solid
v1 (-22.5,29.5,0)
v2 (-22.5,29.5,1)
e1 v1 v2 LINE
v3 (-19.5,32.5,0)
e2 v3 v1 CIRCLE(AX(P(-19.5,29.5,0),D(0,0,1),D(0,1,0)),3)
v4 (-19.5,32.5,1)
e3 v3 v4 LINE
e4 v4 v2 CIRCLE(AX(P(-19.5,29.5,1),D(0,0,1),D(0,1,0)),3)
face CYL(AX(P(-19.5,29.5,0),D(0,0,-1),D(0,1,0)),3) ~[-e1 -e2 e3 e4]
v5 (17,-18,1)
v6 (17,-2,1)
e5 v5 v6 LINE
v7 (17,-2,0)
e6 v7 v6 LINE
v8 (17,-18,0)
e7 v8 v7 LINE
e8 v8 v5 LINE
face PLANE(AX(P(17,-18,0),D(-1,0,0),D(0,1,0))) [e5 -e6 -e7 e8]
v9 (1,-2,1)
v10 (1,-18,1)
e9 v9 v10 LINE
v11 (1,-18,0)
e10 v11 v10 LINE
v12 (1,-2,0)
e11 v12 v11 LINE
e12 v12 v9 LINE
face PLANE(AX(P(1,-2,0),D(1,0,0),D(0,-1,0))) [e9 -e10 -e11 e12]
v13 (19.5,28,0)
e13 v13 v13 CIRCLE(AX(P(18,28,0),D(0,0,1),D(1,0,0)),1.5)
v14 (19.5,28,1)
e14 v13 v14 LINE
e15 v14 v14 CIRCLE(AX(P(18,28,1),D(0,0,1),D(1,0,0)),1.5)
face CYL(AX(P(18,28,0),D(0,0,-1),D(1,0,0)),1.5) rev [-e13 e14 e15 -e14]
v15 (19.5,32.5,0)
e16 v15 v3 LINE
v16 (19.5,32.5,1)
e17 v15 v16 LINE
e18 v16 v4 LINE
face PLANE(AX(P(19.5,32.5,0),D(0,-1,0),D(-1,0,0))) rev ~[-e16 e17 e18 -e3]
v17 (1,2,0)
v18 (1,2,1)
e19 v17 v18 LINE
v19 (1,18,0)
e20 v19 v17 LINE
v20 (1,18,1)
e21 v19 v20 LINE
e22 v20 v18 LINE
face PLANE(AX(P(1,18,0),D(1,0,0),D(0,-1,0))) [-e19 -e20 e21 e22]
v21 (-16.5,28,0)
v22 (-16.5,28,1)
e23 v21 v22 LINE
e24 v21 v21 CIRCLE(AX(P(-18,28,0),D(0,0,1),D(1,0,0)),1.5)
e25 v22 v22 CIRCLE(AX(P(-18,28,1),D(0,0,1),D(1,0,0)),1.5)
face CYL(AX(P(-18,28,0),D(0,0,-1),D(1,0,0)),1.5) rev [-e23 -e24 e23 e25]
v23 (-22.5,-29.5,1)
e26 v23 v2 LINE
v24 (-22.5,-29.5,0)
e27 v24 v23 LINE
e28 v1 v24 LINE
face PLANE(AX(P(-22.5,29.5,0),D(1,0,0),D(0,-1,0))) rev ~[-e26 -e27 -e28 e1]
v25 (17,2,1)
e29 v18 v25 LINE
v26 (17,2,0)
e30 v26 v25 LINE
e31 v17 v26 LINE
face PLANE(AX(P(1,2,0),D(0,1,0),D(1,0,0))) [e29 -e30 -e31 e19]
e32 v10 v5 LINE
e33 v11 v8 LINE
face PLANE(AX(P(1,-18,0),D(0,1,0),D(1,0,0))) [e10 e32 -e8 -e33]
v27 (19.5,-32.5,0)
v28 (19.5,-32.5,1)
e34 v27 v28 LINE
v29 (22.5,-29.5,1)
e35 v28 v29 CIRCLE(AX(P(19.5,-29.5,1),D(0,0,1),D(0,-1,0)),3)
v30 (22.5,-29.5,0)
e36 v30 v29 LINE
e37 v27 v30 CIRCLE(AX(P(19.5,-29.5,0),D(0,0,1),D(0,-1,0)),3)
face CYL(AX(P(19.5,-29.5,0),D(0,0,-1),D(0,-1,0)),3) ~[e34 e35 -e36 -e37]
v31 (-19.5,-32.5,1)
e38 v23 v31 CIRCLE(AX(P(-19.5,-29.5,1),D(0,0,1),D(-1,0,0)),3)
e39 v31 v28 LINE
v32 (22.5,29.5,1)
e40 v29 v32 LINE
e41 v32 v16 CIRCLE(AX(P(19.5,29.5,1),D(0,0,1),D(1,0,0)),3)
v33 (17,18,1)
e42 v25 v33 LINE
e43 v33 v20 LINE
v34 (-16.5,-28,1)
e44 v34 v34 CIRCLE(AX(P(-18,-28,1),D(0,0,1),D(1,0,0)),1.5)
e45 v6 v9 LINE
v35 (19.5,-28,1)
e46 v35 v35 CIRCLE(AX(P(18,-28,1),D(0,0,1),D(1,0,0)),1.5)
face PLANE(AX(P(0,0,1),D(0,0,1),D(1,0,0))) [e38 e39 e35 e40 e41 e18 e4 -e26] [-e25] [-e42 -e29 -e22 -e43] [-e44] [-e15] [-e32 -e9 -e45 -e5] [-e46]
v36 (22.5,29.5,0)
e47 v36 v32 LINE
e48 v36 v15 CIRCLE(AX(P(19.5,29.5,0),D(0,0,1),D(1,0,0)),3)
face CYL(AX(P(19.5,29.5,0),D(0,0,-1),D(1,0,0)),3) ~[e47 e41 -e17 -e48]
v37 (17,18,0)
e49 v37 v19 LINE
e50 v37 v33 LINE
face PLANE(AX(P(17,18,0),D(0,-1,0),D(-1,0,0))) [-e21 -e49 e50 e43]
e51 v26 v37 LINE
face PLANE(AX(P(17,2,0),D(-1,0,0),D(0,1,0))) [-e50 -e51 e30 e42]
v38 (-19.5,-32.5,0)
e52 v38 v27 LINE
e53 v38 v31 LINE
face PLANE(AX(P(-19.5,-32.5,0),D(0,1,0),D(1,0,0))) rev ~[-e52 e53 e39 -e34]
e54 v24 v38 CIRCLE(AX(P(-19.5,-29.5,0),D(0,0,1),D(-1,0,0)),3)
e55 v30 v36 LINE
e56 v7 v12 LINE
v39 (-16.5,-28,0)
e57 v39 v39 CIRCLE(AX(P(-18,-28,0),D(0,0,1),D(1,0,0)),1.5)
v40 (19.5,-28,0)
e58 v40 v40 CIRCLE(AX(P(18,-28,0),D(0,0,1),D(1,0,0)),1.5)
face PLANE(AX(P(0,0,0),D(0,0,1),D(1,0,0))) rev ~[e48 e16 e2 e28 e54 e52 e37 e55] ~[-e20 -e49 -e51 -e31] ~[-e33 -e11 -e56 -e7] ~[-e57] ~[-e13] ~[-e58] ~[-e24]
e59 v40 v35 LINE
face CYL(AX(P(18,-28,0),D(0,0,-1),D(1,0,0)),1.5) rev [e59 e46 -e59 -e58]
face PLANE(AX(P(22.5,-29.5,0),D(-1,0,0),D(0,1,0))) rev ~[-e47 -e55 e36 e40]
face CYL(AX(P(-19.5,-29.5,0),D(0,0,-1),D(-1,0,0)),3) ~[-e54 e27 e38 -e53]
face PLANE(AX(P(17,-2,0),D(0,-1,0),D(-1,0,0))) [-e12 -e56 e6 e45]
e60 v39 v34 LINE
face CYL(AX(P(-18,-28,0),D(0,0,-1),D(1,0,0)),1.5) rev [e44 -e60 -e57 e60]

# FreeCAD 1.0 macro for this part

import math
import FreeCAD as App
import Part
import Sketcher

V = App.Vector
Q = App.Units.Quantity

doc = App.newDocument("Part")
body = doc.addObject("PartDesign::Body", "Body")

# Sketch on XY plane
sketch1 = body.newObject("Sketcher::SketchObject", "Sketch")
sketch1.AttachmentSupport = (doc.getObject("XY_Plane"), [""])
sketch1.MapMode = "FlatFace"
sketch1.addGeometry(Part.LineSegment(V(-22.5, 29.5, 0), V(-22.5, -29.5, 0)), False)
sketch1.addGeometry(Part.ArcOfCircle(Part.Circle(V(-19.5, -29.5, 0), V(0, 0, 1), 3), math.radians(180), math.radians(270)), False)
sketch1.addGeometry(Part.LineSegment(V(-19.5, -32.5, 0), V(19.5, -32.5, 0)), False)
sketch1.addGeometry(Part.ArcOfCircle(Part.Circle(V(19.5, -29.5, 0), V(0, 0, 1), 3), math.radians(-90), math.radians(0)), False)
sketch1.addGeometry(Part.LineSegment(V(22.5, -29.5, 0), V(22.5, 29.5, 0)), False)
sketch1.addGeometry(Part.ArcOfCircle(Part.Circle(V(19.5, 29.5, 0), V(0, 0, 1), 3), math.radians(0), math.radians(90)), False)
sketch1.addGeometry(Part.LineSegment(V(19.5, 32.5, 0), V(-19.5, 32.5, 0)), False)
sketch1.addGeometry(Part.ArcOfCircle(Part.Circle(V(-19.5, 29.5, 0), V(0, 0, 1), 3), math.radians(90), math.radians(180)), False)
sketch1.addGeometry(Part.Circle(V(-18, -28, 0), V(0, 0, 1), 1.5), False)
sketch1.addGeometry(Part.Circle(V(18, -28, 0), V(0, 0, 1), 1.5), False)
sketch1.addGeometry(Part.LineSegment(V(1, -18, 0), V(1, -2, 0)), False)
sketch1.addGeometry(Part.LineSegment(V(1, -2, 0), V(17, -2, 0)), False)
sketch1.addGeometry(Part.LineSegment(V(17, -2, 0), V(17, -18, 0)), False)
sketch1.addGeometry(Part.LineSegment(V(17, -18, 0), V(1, -18, 0)), False)
sketch1.addGeometry(Part.Circle(V(-18, 28, 0), V(0, 0, 1), 1.5), False)
sketch1.addGeometry(Part.LineSegment(V(1, 2, 0), V(1, 18, 0)), False)
sketch1.addGeometry(Part.LineSegment(V(1, 18, 0), V(17, 18, 0)), False)
sketch1.addGeometry(Part.LineSegment(V(17, 18, 0), V(17, 2, 0)), False)
sketch1.addGeometry(Part.LineSegment(V(17, 2, 0), V(1, 2, 0)), False)
sketch1.addGeometry(Part.Circle(V(18, 28, 0), V(0, 0, 1), 1.5), False)
sketch1.addConstraint(Sketcher.Constraint("Tangent", 0, 2, 1, 1))
sketch1.addConstraint(Sketcher.Constraint("Tangent", 1, 2, 2, 1))
sketch1.addConstraint(Sketcher.Constraint("Tangent", 2, 2, 3, 1))
sketch1.addConstraint(Sketcher.Constraint("Tangent", 3, 2, 4, 1))
sketch1.addConstraint(Sketcher.Constraint("Tangent", 4, 2, 5, 1))
sketch1.addConstraint(Sketcher.Constraint("Tangent", 5, 2, 6, 1))
sketch1.addConstraint(Sketcher.Constraint("Tangent", 6, 2, 7, 1))
sketch1.addConstraint(Sketcher.Constraint("Tangent", 7, 2, 0, 1))
sketch1.addConstraint(Sketcher.Constraint("Coincident", 10, 2, 11, 1))
sketch1.addConstraint(Sketcher.Constraint("Coincident", 11, 2, 12, 1))
sketch1.addConstraint(Sketcher.Constraint("Coincident", 12, 2, 13, 1))
sketch1.addConstraint(Sketcher.Constraint("Coincident", 13, 2, 10, 1))
sketch1.addConstraint(Sketcher.Constraint("Coincident", 15, 2, 16, 1))
sketch1.addConstraint(Sketcher.Constraint("Coincident", 16, 2, 17, 1))
sketch1.addConstraint(Sketcher.Constraint("Coincident", 17, 2, 18, 1))
sketch1.addConstraint(Sketcher.Constraint("Coincident", 18, 2, 15, 1))
sketch1.addConstraint(Sketcher.Constraint("Vertical", 0))
sketch1.addConstraint(Sketcher.Constraint("Horizontal", 2))
sketch1.addConstraint(Sketcher.Constraint("Vertical", 4))
sketch1.addConstraint(Sketcher.Constraint("Horizontal", 6))
sketch1.addConstraint(Sketcher.Constraint("Vertical", 10))
sketch1.addConstraint(Sketcher.Constraint("Horizontal", 11))
sketch1.addConstraint(Sketcher.Constraint("Vertical", 12))
sketch1.addConstraint(Sketcher.Constraint("Horizontal", 13))
sketch1.addConstraint(Sketcher.Constraint("Vertical", 15))
sketch1.addConstraint(Sketcher.Constraint("Horizontal", 16))
sketch1.addConstraint(Sketcher.Constraint("Vertical", 17))
sketch1.addConstraint(Sketcher.Constraint("Horizontal", 18))
sketch1.addConstraint(Sketcher.Constraint("Equal", 1, 3))
sketch1.addConstraint(Sketcher.Constraint("Equal", 3, 5))
sketch1.addConstraint(Sketcher.Constraint("Equal", 5, 7))
sketch1.addConstraint(Sketcher.Constraint("Equal", 8, 9))
sketch1.addConstraint(Sketcher.Constraint("Equal", 9, 14))
sketch1.addConstraint(Sketcher.Constraint("Equal", 14, 19))
sketch1.addConstraint(Sketcher.Constraint("Symmetric", 1, 3, 5, 3, -1, 1))
sketch1.addConstraint(Sketcher.Constraint("Symmetric", 9, 3, 14, 3, -1, 1))
sketch1.addConstraint(Sketcher.Constraint("Symmetric", 8, 3, 19, 3, -1, 1))
sketch1.addConstraint(Sketcher.Constraint("Symmetric", 8, 3, 9, 3, -2))
sketch1.addConstraint(Sketcher.Constraint("Symmetric", 13, 2, 15, 2, -1))
sketch1.addConstraint(Sketcher.Constraint("Symmetric", 11, 2, 17, 2, -1))
sketch1.addConstraint(Sketcher.Constraint("Equal", 18, 10))
sketch1.addConstraint(Sketcher.Constraint("Diameter", 8, Q("3 mm")))
sketch1.addConstraint(Sketcher.Constraint("Radius", 1, Q("3 mm")))
sketch1.addConstraint(Sketcher.Constraint("DistanceX", 2, 1, 2, 2, Q("39 mm")))
sketch1.addConstraint(Sketcher.Constraint("DistanceX", 11, 1, 11, 2, Q("16 mm")))
sketch1.addConstraint(Sketcher.Constraint("DistanceY", 0, 2, 0, 1, Q("59 mm")))
sketch1.addConstraint(Sketcher.Constraint("DistanceX", 8, 3, -1, 1, Q("18 mm")))
sketch1.addConstraint(Sketcher.Constraint("DistanceY", 8, 3, -1, 1, Q("28 mm")))
sketch1.addConstraint(Sketcher.Constraint("DistanceX", -1, 1, 10, 2, Q("1 mm")))
sketch1.addConstraint(Sketcher.Constraint("DistanceY", 10, 2, -1, 1, Q("2 mm")))
pad1 = body.newObject("PartDesign::Pad", "Pad")
pad1.Profile = sketch1
pad1.Length = 1

doc.recompute()
